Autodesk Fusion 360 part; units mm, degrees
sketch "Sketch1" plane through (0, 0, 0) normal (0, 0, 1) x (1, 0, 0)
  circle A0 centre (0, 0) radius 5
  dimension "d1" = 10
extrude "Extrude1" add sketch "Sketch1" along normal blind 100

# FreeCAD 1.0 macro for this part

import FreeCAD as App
import Part
import Sketcher
Q = App.Units.Quantity

doc = App.newDocument("Part")
body = doc.addObject("PartDesign::Body", "Body")

# Sketch on XY plane
sketch1 = body.newObject("Sketcher::SketchObject", "Sketch")
sketch1.AttachmentSupport = (doc.getObject("XY_Plane"), [""])
sketch1.MapMode = "FlatFace"
sketch1.addGeometry(Part.Circle(App.Vector(0, 0, 0), App.Vector(0, 0, 1), 5), False)
sketch1.addConstraint([
    Sketcher.Constraint("Coincident", 0, 3, -1, 1),
    Sketcher.Constraint("Diameter", 0, Q("0.3937 in")),
])
pad1 = body.newObject("PartDesign::Pad", "Pad")
pad1.Profile = sketch1
pad1.Length = Q("3.9370079 in")

doc.recompute()
